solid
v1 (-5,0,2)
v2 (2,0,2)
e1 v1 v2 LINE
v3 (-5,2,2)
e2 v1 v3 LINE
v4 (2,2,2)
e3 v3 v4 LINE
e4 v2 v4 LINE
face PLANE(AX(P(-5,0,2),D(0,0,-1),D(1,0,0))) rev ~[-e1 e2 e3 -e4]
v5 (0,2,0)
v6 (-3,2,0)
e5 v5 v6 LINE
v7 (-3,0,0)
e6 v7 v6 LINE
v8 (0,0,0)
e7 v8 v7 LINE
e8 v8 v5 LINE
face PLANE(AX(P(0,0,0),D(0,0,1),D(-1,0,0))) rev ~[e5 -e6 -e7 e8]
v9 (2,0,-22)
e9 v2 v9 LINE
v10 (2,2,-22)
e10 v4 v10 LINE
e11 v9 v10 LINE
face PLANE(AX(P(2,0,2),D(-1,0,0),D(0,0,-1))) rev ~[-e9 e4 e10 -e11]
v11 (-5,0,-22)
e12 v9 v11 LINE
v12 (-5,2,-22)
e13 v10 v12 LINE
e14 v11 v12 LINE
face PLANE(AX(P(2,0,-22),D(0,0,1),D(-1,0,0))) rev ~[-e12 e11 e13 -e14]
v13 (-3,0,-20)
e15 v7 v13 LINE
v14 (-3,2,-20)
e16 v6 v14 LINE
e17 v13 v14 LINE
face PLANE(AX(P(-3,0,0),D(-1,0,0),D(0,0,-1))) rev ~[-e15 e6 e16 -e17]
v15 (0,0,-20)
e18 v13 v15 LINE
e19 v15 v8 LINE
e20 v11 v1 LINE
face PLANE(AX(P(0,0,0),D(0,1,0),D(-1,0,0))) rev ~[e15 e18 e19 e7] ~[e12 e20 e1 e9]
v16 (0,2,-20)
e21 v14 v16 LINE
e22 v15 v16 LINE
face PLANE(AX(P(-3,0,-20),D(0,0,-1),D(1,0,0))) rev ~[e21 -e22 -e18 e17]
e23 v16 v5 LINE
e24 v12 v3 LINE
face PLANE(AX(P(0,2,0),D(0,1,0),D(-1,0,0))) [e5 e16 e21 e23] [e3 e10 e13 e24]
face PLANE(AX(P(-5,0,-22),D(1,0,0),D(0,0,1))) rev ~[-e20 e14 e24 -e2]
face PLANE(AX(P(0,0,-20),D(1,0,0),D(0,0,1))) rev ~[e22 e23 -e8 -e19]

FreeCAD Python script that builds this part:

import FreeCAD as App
import Part
import Sketcher

V = App.Vector
Q = App.Units.Quantity


def add_polygon(sketch, points):
    """Adds a closed chain of lines whose ends are joined by coincident constraints."""
    first, n = sketch.GeometryCount, len(points)
    for a, b in zip(points, points[1:] + points[:1]):
        sketch.addGeometry(Part.LineSegment(App.Vector(*a, 0), App.Vector(*b, 0)), False)
    for i in range(n):
        sketch.addConstraint(Sketcher.Constraint("Coincident", first + i, 2, first + (i + 1) % n, 1))

doc = App.newDocument("Part")
body = doc.addObject("PartDesign::Body", "Body")

sketch1 = doc.addObject("Sketcher::SketchObject", "Sketch")
body.addObject(sketch1)
sketch1.AttachmentSupport = (doc.XZ_Plane, [""])
sketch1.MapMode = "FlatFace"
add_polygon(sketch1, [(2, -22), (-5, -22), (-5, 2), (2, 2)])
add_polygon(sketch1, [(0, -20), (0, 0), (-3, 0), (-3, -20)])
sketch1.addConstraint(Sketcher.Constraint("Horizontal", 0))
sketch1.addConstraint(Sketcher.Constraint("Vertical", 1))
sketch1.addConstraint(Sketcher.Constraint("Horizontal", 2))
sketch1.addConstraint(Sketcher.Constraint("Vertical", 3))
sketch1.addConstraint(Sketcher.Constraint("Vertical", 4))
sketch1.addConstraint(Sketcher.Constraint("Horizontal", 5))
sketch1.addConstraint(Sketcher.Constraint("Vertical", 6))
sketch1.addConstraint(Sketcher.Constraint("Horizontal", 7))
sketch1.addConstraint(Sketcher.Constraint("Coincident", 4, 2, -1, 1))
sketch1.addConstraint(Sketcher.Constraint("DistanceX", 5, 2, 5, 1, Q("3 mm")))
sketch1.addConstraint(Sketcher.Constraint("DistanceY", 4, 1, 4, 2, Q("20 mm")))
sketch1.addConstraint(Sketcher.Constraint("DistanceY", -1, 1, 1, 2, Q("2 mm")))
sketch1.addConstraint(Sketcher.Constraint("DistanceX", -1, 1, 2, 2, Q("2 mm")))
sketch1.addConstraint(Sketcher.Constraint("DistanceX", 1, 2, 5, 2, Q("2 mm")))
sketch1.addConstraint(Sketcher.Constraint("DistanceY", 0, 2, 6, 2, Q("2 mm")))
pad1 = doc.addObject("PartDesign::Pad", "Pad")
body.addObject(pad1)
pad1.Profile = sketch1
pad1.Length = 2
pad1.Reversed = True

doc.recompute()
